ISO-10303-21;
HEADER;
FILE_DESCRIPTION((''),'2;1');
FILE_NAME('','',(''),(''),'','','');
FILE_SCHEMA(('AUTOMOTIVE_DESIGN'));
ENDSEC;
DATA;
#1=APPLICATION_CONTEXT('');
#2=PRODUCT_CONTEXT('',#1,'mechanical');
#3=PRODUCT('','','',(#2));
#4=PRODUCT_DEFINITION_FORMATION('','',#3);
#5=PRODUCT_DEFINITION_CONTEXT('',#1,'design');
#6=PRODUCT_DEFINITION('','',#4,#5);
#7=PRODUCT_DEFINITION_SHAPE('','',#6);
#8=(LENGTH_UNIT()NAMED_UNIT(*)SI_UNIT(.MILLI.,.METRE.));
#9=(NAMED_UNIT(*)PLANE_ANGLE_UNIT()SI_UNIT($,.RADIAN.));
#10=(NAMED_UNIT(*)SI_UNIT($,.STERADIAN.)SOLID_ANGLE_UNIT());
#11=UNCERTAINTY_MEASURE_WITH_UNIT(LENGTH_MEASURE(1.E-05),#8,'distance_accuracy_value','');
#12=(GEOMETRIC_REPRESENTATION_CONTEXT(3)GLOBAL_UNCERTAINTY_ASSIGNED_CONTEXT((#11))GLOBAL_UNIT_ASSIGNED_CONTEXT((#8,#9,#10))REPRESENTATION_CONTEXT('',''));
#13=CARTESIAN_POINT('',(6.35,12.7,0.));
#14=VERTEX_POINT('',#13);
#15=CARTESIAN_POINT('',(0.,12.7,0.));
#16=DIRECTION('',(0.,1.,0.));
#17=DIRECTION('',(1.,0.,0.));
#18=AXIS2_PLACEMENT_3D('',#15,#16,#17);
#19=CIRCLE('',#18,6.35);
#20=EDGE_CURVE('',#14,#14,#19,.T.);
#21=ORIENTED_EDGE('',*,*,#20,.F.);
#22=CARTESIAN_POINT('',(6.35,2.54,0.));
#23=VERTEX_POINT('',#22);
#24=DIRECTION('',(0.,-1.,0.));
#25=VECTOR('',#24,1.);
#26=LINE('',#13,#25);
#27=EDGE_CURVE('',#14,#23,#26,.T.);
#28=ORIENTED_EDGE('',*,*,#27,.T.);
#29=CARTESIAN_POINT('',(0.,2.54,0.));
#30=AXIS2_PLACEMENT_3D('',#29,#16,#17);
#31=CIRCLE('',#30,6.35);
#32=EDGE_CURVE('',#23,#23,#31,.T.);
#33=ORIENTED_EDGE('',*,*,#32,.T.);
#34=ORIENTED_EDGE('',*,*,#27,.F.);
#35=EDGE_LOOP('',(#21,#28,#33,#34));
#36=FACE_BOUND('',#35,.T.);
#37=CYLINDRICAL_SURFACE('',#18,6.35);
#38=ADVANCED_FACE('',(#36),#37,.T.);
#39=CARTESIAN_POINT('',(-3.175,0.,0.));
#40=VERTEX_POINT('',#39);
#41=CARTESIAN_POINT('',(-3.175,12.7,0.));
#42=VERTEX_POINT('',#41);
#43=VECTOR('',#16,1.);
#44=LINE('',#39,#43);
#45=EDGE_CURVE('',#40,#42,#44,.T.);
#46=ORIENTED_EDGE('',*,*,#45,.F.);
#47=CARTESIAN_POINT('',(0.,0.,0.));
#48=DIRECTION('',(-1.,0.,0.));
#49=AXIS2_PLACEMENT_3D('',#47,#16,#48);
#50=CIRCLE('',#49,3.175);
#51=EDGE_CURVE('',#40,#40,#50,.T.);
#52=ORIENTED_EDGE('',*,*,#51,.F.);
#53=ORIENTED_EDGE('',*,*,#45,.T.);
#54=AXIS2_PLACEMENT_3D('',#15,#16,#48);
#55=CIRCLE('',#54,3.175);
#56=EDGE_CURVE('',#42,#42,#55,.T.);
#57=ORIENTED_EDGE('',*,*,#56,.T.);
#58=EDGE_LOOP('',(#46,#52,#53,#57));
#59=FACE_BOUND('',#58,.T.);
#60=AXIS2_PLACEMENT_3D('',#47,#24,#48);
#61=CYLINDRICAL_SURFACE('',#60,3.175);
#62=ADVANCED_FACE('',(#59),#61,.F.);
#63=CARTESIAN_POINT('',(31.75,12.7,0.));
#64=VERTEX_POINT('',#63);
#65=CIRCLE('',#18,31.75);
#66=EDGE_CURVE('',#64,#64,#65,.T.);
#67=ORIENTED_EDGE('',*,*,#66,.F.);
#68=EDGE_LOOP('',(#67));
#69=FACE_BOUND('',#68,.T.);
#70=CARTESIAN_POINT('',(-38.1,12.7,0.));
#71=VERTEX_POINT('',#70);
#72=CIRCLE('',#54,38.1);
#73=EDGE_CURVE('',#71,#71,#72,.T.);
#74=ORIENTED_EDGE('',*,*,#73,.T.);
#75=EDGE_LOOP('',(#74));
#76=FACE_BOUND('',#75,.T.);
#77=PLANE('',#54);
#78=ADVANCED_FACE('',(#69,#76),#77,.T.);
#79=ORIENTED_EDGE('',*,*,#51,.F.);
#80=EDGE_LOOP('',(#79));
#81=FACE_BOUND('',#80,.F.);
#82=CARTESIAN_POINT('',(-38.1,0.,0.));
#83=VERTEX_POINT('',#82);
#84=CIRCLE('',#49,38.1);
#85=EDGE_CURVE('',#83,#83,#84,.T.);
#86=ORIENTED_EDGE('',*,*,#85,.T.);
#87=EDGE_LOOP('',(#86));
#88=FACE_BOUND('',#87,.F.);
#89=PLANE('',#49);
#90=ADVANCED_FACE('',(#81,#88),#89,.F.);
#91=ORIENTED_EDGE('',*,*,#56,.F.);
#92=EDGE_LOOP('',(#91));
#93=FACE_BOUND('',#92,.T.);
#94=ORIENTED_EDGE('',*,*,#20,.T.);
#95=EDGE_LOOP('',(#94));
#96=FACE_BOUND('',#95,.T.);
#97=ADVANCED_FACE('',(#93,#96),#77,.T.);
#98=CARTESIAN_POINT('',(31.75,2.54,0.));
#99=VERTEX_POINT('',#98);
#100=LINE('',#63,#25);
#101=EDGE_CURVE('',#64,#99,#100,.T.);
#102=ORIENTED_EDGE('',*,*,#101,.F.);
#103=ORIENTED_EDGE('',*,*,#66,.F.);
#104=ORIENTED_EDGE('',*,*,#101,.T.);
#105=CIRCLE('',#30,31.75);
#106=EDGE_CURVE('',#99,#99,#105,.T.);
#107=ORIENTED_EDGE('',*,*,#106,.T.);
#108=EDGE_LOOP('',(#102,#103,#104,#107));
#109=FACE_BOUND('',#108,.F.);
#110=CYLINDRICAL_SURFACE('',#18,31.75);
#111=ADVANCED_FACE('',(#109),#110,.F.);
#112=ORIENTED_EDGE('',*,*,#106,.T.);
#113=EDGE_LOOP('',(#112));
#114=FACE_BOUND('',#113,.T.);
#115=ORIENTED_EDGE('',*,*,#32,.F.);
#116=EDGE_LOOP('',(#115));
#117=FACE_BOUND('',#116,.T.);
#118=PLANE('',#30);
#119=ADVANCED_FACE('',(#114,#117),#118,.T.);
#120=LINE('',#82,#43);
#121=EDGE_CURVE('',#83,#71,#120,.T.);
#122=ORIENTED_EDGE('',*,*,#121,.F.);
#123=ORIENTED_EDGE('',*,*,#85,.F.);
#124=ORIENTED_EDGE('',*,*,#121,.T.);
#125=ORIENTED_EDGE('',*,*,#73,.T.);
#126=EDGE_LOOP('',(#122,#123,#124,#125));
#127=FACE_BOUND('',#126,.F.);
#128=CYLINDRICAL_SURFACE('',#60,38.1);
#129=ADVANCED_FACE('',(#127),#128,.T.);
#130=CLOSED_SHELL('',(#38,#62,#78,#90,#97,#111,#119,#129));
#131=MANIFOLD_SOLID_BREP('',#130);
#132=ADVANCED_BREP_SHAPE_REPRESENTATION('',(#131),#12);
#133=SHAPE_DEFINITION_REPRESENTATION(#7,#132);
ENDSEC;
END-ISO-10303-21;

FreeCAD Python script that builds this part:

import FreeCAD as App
import Part
import Sketcher

V = App.Vector
Q = App.Units.Quantity

doc = App.newDocument("Part")
body = doc.addObject("PartDesign::Body", "Body")

# Sketch on XZ plane
sketch1 = body.newObject("Sketcher::SketchObject", "Sketch")
sketch1.AttachmentSupport = (doc.getObject("XZ_Plane"), [""])
sketch1.MapMode = "FlatFace"
sketch1.addGeometry(Part.Circle(V(0, 0, 0), V(0, 0, 1), 38.1), False)
sketch1.addGeometry(Part.Circle(V(0, 0, 0), V(0, 0, 1), 3.175), False)
sketch1.addConstraint(Sketcher.Constraint("Coincident", 0, 3, -1, 1))
sketch1.addConstraint(Sketcher.Constraint("Coincident", 1, 3, -1, 1))
sketch1.addConstraint(Sketcher.Constraint("Diameter", 0, Q("3 in")))
sketch1.addConstraint(Sketcher.Constraint("Diameter", 1, Q("0.25 in")))
pad1 = body.newObject("PartDesign::Pad", "Pad")
pad1.Profile = sketch1
pad1.Length = Q("0.5 in")
pad1.Reversed = True

# Sketch on XZ plane
sketch2 = body.newObject("Sketcher::SketchObject", "Sketch001")
sketch2.AttachmentSupport = (doc.getObject("XZ_Plane"), [""])
sketch2.MapMode = "FlatFace"
sketch2.AttachmentOffset = App.Placement(V(0, 0, -0.5 * 25.4), App.Rotation())
sketch2.addGeometry(Part.Circle(V(0, 0, 0), V(0, 0, 1), 31.75), False)
sketch2.addGeometry(Part.Circle(V(0, 0, 0), V(0, 0, 1), 6.35), False)
sketch2.addConstraint(Sketcher.Constraint("Coincident", 0, 3, -1, 1))
sketch2.addConstraint(Sketcher.Constraint("Coincident", 1, 3, -1, 1))
sketch2.addConstraint(Sketcher.Constraint("Diameter", 0, Q("2.5 in")))
sketch2.addConstraint(Sketcher.Constraint("Diameter", 1, Q("0.5 in")))
pocket1 = body.newObject("PartDesign::Pocket", "Pocket")
pocket1.Profile = sketch2
pocket1.Length = Q("0.4 in")
pocket1.Reversed = True

doc.recompute()
